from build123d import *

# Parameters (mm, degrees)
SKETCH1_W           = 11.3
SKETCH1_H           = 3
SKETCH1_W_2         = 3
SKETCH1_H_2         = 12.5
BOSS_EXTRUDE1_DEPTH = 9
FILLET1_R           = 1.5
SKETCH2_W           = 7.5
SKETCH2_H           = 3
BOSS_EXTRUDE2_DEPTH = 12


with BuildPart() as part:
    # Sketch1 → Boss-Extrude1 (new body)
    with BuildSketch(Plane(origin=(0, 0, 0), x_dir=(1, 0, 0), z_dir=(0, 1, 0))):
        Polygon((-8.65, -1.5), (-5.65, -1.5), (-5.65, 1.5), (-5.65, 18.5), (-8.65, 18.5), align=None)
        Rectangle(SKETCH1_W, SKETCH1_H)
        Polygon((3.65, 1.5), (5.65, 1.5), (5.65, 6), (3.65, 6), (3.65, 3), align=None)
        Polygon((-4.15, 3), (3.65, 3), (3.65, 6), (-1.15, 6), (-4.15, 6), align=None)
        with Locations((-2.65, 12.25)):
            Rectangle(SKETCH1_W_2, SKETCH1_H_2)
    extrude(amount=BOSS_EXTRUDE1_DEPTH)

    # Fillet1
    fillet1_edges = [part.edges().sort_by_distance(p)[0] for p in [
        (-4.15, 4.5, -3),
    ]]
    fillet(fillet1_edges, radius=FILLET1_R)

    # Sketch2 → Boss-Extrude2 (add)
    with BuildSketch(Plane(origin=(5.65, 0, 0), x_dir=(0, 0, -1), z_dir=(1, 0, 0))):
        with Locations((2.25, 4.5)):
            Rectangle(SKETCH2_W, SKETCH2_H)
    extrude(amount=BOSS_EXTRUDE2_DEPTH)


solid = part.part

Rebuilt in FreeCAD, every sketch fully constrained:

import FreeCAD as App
import Part
import Sketcher

V = App.Vector


def edges_at(feature, points):
    """Names of the edges that pass closest to the given points."""
    edges = feature.Shape.Edges
    near = lambda p: min(range(len(edges)), key=lambda i: edges[i].distToShape(Part.Vertex(*p))[0])
    return sorted({f"Edge{near(p) + 1}" for p in points})


def add_polygon(sketch, points):
    """Adds a closed chain of lines whose ends are joined by coincident constraints."""
    first, n = sketch.GeometryCount, len(points)
    for a, b in zip(points, points[1:] + points[:1]):
        sketch.addGeometry(Part.LineSegment(App.Vector(*a, 0), App.Vector(*b, 0)), False)
    for i in range(n):
        sketch.addConstraint(Sketcher.Constraint("Coincident", first + i, 2, first + (i + 1) % n, 1))

doc = App.newDocument("Part")
body = doc.addObject("PartDesign::Body", "Body")

sketch1 = body.newObject("Sketcher::SketchObject", "Sketch")
sketch1.AttachmentSupport = (doc.getObject("XZ_Plane"), [""])
sketch1.MapMode = "FlatFace"
add_polygon(sketch1, [(-8.7, 1.5), (5.7, 1.5), (5.7, -6), (-1.1, -6), (-1.1, -18.5), (-4.2, -18.5), (-4.2, -3), (3.6, -3), (3.6, -1.5), (-5.7, -1.5), (-5.7, -18.5), (-8.7, -18.5)])
sketch1.addConstraint([
    Sketcher.Constraint("Horizontal", 0),
    Sketcher.Constraint("Vertical", 1),
    Sketcher.Constraint("Horizontal", 2),
    Sketcher.Constraint("Vertical", 3),
    Sketcher.Constraint("Horizontal", 4),
    Sketcher.Constraint("Vertical", 5),
    Sketcher.Constraint("Horizontal", 6),
    Sketcher.Constraint("Vertical", 7),
    Sketcher.Constraint("Horizontal", 8),
    Sketcher.Constraint("Vertical", 9),
    Sketcher.Constraint("Horizontal", 10),
    Sketcher.Constraint("Vertical", 11),
    Sketcher.Constraint("Symmetric", 0, 2, 8, 2, -1, 1),
    Sketcher.Constraint("Horizontal", 4, 2, 9, 2),
    Sketcher.Constraint("Equal", 4, 10),
    Sketcher.Constraint("DistanceX", 4, 2, 4, 1, 3.0),
    Sketcher.Constraint("DistanceY", 9, 2, 9, 1, 17.0),
    Sketcher.Constraint("DistanceY", 11, 1, 11, 2, 20.0),
    Sketcher.Constraint("DistanceX", 0, 1, 0, 2, 14.3),
    Sketcher.Constraint("DistanceX", 2, 2, 2, 1, 6.8),
    Sketcher.Constraint("DistanceX", 6, 1, 6, 2, 7.8),
    Sketcher.Constraint("DistanceY", 1, 2, 1, 1, 7.5),
    Sketcher.Constraint("DistanceY", 5, 1, 5, 2, 15.5),
])
pad1 = body.newObject("PartDesign::Pad", "Pad")
pad1.Profile = sketch1
pad1.Length = 9
pad1.Reversed = True
doc.recompute()

fillet = body.newObject("PartDesign::Fillet", "Fillet")
fillet.Base = (pad1, edges_at(pad1, [(-4.15, 4.5, -3)]))
fillet.Radius = 1.5

sketch2 = body.newObject("Sketcher::SketchObject", "Sketch001")
sketch2.AttachmentSupport = (doc.getObject("YZ_Plane"), [""])
sketch2.MapMode = "FlatFace"
sketch2.AttachmentOffset = App.Placement(V(0, 0, 5.65), App.Rotation())
add_polygon(sketch2, [(6, 1.5), (3, 1.5), (3, -6), (6, -6)])
sketch2.addConstraint([
    Sketcher.Constraint("Horizontal", 0),
    Sketcher.Constraint("Vertical", 1),
    Sketcher.Constraint("Horizontal", 2),
    Sketcher.Constraint("Vertical", 3),
    Sketcher.Constraint("DistanceX", 0, 2, 0, 1, 3.0),
    Sketcher.Constraint("DistanceY", 1, 2, 1, 1, 7.5),
    Sketcher.Constraint("DistanceX", -1, 1, 0, 2, 3.0),
    Sketcher.Constraint("DistanceY", 1, 2, -1, 1, 6.0),
])
pad2 = body.newObject("PartDesign::Pad", "Pad001")
pad2.Profile = sketch2
pad2.Length = 12

doc.recompute()
